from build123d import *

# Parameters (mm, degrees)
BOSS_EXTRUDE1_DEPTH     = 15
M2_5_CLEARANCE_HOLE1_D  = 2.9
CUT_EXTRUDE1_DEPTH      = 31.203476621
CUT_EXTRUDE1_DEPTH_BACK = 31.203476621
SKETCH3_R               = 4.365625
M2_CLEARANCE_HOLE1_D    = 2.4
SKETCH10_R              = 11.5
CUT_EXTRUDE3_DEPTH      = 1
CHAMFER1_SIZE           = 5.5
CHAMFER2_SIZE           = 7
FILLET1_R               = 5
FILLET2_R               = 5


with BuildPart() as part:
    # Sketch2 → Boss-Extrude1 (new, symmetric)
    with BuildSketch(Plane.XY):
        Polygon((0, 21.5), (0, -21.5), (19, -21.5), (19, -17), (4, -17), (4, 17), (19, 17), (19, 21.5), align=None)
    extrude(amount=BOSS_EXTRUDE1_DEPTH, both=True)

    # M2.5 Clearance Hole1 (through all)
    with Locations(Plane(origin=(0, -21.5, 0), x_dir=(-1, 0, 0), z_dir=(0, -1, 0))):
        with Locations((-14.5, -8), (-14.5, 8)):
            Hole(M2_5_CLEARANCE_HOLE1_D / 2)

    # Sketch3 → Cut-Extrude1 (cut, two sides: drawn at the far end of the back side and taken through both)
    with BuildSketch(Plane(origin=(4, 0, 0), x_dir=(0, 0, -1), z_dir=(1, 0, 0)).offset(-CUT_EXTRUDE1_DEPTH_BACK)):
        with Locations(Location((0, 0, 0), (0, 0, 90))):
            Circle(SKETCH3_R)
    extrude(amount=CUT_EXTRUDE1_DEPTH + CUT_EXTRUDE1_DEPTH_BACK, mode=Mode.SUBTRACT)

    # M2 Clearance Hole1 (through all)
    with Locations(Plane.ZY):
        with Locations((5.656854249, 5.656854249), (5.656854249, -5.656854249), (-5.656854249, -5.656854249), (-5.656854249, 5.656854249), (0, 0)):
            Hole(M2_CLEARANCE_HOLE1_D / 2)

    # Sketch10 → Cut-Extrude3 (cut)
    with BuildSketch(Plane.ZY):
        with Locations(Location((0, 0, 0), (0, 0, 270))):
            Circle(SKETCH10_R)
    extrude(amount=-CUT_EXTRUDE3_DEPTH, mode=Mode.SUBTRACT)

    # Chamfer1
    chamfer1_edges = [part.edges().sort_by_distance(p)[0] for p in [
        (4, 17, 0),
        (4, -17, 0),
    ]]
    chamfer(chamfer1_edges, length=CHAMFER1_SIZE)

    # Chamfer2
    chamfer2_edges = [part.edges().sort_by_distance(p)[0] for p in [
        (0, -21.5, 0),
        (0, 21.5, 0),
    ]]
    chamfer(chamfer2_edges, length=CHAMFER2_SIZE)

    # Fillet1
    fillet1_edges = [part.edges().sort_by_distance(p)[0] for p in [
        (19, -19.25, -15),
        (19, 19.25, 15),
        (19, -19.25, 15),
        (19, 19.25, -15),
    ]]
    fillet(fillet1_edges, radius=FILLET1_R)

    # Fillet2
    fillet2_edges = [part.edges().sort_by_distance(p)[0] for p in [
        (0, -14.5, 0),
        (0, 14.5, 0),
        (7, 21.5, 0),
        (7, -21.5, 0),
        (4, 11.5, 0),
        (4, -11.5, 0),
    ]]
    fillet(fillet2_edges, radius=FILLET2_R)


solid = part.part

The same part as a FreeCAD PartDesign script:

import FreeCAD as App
import Part
import Sketcher


def edges_at(feature, points):
    """Names of the edges that pass closest to the given points."""
    edges = feature.Shape.Edges
    near = lambda p: min(range(len(edges)), key=lambda i: edges[i].distToShape(Part.Vertex(*p))[0])
    return sorted({f"Edge{near(p) + 1}" for p in points})


def add_polygon(sketch, points):
    """Adds a closed chain of lines whose ends are joined by coincident constraints."""
    first, n = sketch.GeometryCount, len(points)
    for a, b in zip(points, points[1:] + points[:1]):
        sketch.addGeometry(Part.LineSegment(App.Vector(*a, 0), App.Vector(*b, 0)), False)
    for i in range(n):
        sketch.addConstraint(Sketcher.Constraint("Coincident", first + i, 2, first + (i + 1) % n, 1))

doc = App.newDocument("Part")
params = doc.addObject("Spreadsheet::Sheet", "Params")
for row, (alias, value) in enumerate([
    ("sketch1_width", "19 mm"),
    ("sketch1_width2", "15 mm"),
    ("sketch1_height", "43 mm"),
    ("sketch1_height2", "34 mm"),
    ("pad1_length", "30 mm"),
    ("sketch2_diameter", "2.9 mm"),
    ("hole_diameter", "2.9 mm"),
    ("sketch4_diameter", "2.4 mm"),
    ("hole2_diameter", "2.4 mm"),
    ("sketch5_diameter", "23 mm"),
    ("pocket2_length", "1 mm"),
    ("chamfer_size", "5.5 mm"),
    ("chamfer2_size", "7 mm"),
    ("fillet_radius", "5 mm"),
    ("fillet2_radius", "5 mm"),
], start=1):
    params.set(f"A{row}", alias)
    params.set(f"B{row}", "=" + value)
    params.setAlias(f"B{row}", alias)

body = doc.addObject("PartDesign::Body", "Body")

sketch1 = body.newObject("Sketcher::SketchObject", "Sketch")
sketch1.AttachmentSupport = (doc.getObject("XY_Plane"), [""])
sketch1.MapMode = "FlatFace"
add_polygon(sketch1, [(0, 21.5), (0, -21.5), (19, -21.5), (19, -17), (4, -17), (4, 17), (19, 17), (19, 21.5)])
sketch1.addConstraint(Sketcher.Constraint("Vertical", 0))
sketch1.addConstraint(Sketcher.Constraint("Horizontal", 1))
sketch1.addConstraint(Sketcher.Constraint("Vertical", 2))
sketch1.addConstraint(Sketcher.Constraint("Horizontal", 3))
sketch1.addConstraint(Sketcher.Constraint("Vertical", 4))
sketch1.addConstraint(Sketcher.Constraint("Horizontal", 5))
sketch1.addConstraint(Sketcher.Constraint("Vertical", 6))
sketch1.addConstraint(Sketcher.Constraint("Horizontal", 7))
sketch1.addConstraint(Sketcher.Constraint("Symmetric", 0, 2, 7, 2, -1, 1))
sketch1.addConstraint(Sketcher.Constraint("Symmetric", 2, 2, 5, 2, -1))
sketch1.addConstraint(Sketcher.Constraint("DistanceX", 1, 1, 1, 2, 19.0))
sketch1.addConstraint(Sketcher.Constraint("DistanceX", 3, 2, 3, 1, 15.0))
sketch1.addConstraint(Sketcher.Constraint("DistanceY", 0, 2, 0, 1, 43.0))
sketch1.addConstraint(Sketcher.Constraint("DistanceY", 4, 1, 4, 2, 34.0))
sketch1.setExpression("Constraints[18]", "Params.sketch1_width")
sketch1.setExpression("Constraints[19]", "Params.sketch1_width2")
sketch1.setExpression("Constraints[20]", "Params.sketch1_height")
sketch1.setExpression("Constraints[21]", "Params.sketch1_height2")
pad1 = body.newObject("PartDesign::Pad", "Pad")
pad1.Profile = sketch1
pad1.setExpression("Length", "Params.pad1_length")
pad1.Midplane = True

sketch2 = body.newObject("Sketcher::SketchObject", "Sketch001")
sketch2.AttachmentSupport = (doc.getObject("XZ_Plane"), [""])
sketch2.MapMode = "FlatFace"
sketch2.AttachmentOffset = App.Placement(App.Vector(0, 0, 21.5), App.Rotation())
sketch2.addGeometry(Part.Circle(App.Vector(14.5, 8, 0), App.Vector(0, 0, 1), 1.4), False)
sketch2.addGeometry(Part.Circle(App.Vector(14.5, -8, 0), App.Vector(0, 0, 1), 1.4), False)
sketch2.addConstraint(Sketcher.Constraint("Equal", 0, 1))
sketch2.addConstraint(Sketcher.Constraint("Symmetric", 0, 3, 1, 3, -1))
sketch2.addConstraint(Sketcher.Constraint("Diameter", 0, 2.9))
sketch2.addConstraint(Sketcher.Constraint("DistanceY", -1, 1, 0, 3, 8.0))
sketch2.addConstraint(Sketcher.Constraint("DistanceX", -1, 1, 0, 3, 14.5))
sketch2.setExpression("Constraints[2]", "Params.sketch2_diameter")
doc.recompute()
hole = body.newObject("PartDesign::Hole", "Hole")
hole.Profile = sketch2
hole.ThreadType = "None"
hole.setExpression("Diameter", "Params.hole_diameter")
hole.DepthType = "ThroughAll"

sketch3 = body.newObject("Sketcher::SketchObject", "Sketch002")
sketch3.AttachmentSupport = (doc.getObject("YZ_Plane"), [""])
sketch3.MapMode = "FlatFace"
sketch3.AttachmentOffset = App.Placement(App.Vector(0, 0, 4), App.Rotation())
sketch3.addGeometry(Part.Circle(App.Vector(0, 0, 0), App.Vector(0, 0, 1), 4.4), False)
sketch3.addConstraint(Sketcher.Constraint("Coincident", 0, 3, -1, 1))
sketch3.addConstraint(Sketcher.Constraint("Diameter", 0, 8.73125))
pocket1 = body.newObject("PartDesign::Pocket", "Pocket")
pocket1.Profile = sketch3
pocket1.Type = "ThroughAll"
pocket1.Midplane = True

sketch4 = body.newObject("Sketcher::SketchObject", "Sketch003")
sketch4.AttachmentSupport = (doc.getObject("YZ_Plane"), [""])
sketch4.MapMode = "FlatFace"
sketch4.addGeometry(Part.Circle(App.Vector(5.7, 5.7, 0), App.Vector(0, 0, 1), 1.2), False)
sketch4.addGeometry(Part.Circle(App.Vector(-5.7, 5.7, 0), App.Vector(0, 0, 1), 1.2), False)
sketch4.addGeometry(Part.Circle(App.Vector(-5.7, -5.7, 0), App.Vector(0, 0, 1), 1.2), False)
sketch4.addGeometry(Part.Circle(App.Vector(5.7, -5.7, 0), App.Vector(0, 0, 1), 1.2), False)
sketch4.addGeometry(Part.Circle(App.Vector(0, 0, 0), App.Vector(0, 0, 1), 1.2), False)
sketch4.addConstraint(Sketcher.Constraint("Coincident", 4, 3, -1, 1))
sketch4.addConstraint(Sketcher.Constraint("Equal", 0, 1))
sketch4.addConstraint(Sketcher.Constraint("Equal", 1, 2))
sketch4.addConstraint(Sketcher.Constraint("Equal", 2, 3))
sketch4.addConstraint(Sketcher.Constraint("Equal", 3, 4))
sketch4.addConstraint(Sketcher.Constraint("Symmetric", 0, 3, 2, 3, -1, 1))
sketch4.addConstraint(Sketcher.Constraint("Symmetric", 1, 3, 3, 3, -1, 1))
sketch4.addConstraint(Sketcher.Constraint("Symmetric", 0, 3, 1, 3, -2))
sketch4.addConstraint(Sketcher.Constraint("Diameter", 0, 2.4))
sketch4.addConstraint(Sketcher.Constraint("DistanceX", 1, 3, 0, 3, 11.313708))
sketch4.addConstraint(Sketcher.Constraint("DistanceY", 2, 3, 1, 3, 11.313708))
sketch4.setExpression("Constraints[8]", "Params.sketch4_diameter")
doc.recompute()
hole2 = body.newObject("PartDesign::Hole", "Hole001")
hole2.Profile = sketch4
hole2.ThreadType = "None"
hole2.setExpression("Diameter", "Params.hole2_diameter")
hole2.DepthType = "ThroughAll"
hole2.Reversed = True

sketch5 = body.newObject("Sketcher::SketchObject", "Sketch004")
sketch5.AttachmentSupport = (doc.getObject("YZ_Plane"), [""])
sketch5.MapMode = "FlatFace"
sketch5.addGeometry(Part.Circle(App.Vector(0, 0, 0), App.Vector(0, 0, 1), 12), False)
sketch5.addConstraint(Sketcher.Constraint("Coincident", 0, 3, -1, 1))
sketch5.addConstraint(Sketcher.Constraint("Diameter", 0, 23.0))
sketch5.setExpression("Constraints[1]", "Params.sketch5_diameter")
pocket2 = body.newObject("PartDesign::Pocket", "Pocket001")
pocket2.Profile = sketch5
pocket2.setExpression("Length", "Params.pocket2_length")
pocket2.Reversed = True
doc.recompute()

chamfer = body.newObject("PartDesign::Chamfer", "Chamfer")
chamfer.Base = (pocket2, edges_at(pocket2, [(4, 17, 0), (4, -17, 0)]))
chamfer.setExpression("Size", "Params.chamfer_size")
doc.recompute()

chamfer2 = body.newObject("PartDesign::Chamfer", "Chamfer001")
chamfer2.Base = (chamfer, edges_at(chamfer, [(0, -21.5, 0), (0, 21.5, 0)]))
chamfer2.setExpression("Size", "Params.chamfer2_size")
doc.recompute()

fillet = body.newObject("PartDesign::Fillet", "Fillet")
fillet.Base = (chamfer2, edges_at(chamfer2, [
    (19, -19.25, -15),
    (19, 19.25, 15),
    (19, -19.25, 15),
    (19, 19.25, -15),
]))
fillet.setExpression("Radius", "Params.fillet_radius")
doc.recompute()

fillet2 = body.newObject("PartDesign::Fillet", "Fillet001")
fillet2.Base = (fillet, edges_at(fillet, [
    (0, -14.5, 0),
    (0, 14.5, 0),
    (7, 21.5, 0),
    (7, -21.5, 0),
    (4, 11.5, 0),
    (4, -11.5, 0),
]))
fillet2.setExpression("Radius", "Params.fillet2_radius")

doc.recompute()
